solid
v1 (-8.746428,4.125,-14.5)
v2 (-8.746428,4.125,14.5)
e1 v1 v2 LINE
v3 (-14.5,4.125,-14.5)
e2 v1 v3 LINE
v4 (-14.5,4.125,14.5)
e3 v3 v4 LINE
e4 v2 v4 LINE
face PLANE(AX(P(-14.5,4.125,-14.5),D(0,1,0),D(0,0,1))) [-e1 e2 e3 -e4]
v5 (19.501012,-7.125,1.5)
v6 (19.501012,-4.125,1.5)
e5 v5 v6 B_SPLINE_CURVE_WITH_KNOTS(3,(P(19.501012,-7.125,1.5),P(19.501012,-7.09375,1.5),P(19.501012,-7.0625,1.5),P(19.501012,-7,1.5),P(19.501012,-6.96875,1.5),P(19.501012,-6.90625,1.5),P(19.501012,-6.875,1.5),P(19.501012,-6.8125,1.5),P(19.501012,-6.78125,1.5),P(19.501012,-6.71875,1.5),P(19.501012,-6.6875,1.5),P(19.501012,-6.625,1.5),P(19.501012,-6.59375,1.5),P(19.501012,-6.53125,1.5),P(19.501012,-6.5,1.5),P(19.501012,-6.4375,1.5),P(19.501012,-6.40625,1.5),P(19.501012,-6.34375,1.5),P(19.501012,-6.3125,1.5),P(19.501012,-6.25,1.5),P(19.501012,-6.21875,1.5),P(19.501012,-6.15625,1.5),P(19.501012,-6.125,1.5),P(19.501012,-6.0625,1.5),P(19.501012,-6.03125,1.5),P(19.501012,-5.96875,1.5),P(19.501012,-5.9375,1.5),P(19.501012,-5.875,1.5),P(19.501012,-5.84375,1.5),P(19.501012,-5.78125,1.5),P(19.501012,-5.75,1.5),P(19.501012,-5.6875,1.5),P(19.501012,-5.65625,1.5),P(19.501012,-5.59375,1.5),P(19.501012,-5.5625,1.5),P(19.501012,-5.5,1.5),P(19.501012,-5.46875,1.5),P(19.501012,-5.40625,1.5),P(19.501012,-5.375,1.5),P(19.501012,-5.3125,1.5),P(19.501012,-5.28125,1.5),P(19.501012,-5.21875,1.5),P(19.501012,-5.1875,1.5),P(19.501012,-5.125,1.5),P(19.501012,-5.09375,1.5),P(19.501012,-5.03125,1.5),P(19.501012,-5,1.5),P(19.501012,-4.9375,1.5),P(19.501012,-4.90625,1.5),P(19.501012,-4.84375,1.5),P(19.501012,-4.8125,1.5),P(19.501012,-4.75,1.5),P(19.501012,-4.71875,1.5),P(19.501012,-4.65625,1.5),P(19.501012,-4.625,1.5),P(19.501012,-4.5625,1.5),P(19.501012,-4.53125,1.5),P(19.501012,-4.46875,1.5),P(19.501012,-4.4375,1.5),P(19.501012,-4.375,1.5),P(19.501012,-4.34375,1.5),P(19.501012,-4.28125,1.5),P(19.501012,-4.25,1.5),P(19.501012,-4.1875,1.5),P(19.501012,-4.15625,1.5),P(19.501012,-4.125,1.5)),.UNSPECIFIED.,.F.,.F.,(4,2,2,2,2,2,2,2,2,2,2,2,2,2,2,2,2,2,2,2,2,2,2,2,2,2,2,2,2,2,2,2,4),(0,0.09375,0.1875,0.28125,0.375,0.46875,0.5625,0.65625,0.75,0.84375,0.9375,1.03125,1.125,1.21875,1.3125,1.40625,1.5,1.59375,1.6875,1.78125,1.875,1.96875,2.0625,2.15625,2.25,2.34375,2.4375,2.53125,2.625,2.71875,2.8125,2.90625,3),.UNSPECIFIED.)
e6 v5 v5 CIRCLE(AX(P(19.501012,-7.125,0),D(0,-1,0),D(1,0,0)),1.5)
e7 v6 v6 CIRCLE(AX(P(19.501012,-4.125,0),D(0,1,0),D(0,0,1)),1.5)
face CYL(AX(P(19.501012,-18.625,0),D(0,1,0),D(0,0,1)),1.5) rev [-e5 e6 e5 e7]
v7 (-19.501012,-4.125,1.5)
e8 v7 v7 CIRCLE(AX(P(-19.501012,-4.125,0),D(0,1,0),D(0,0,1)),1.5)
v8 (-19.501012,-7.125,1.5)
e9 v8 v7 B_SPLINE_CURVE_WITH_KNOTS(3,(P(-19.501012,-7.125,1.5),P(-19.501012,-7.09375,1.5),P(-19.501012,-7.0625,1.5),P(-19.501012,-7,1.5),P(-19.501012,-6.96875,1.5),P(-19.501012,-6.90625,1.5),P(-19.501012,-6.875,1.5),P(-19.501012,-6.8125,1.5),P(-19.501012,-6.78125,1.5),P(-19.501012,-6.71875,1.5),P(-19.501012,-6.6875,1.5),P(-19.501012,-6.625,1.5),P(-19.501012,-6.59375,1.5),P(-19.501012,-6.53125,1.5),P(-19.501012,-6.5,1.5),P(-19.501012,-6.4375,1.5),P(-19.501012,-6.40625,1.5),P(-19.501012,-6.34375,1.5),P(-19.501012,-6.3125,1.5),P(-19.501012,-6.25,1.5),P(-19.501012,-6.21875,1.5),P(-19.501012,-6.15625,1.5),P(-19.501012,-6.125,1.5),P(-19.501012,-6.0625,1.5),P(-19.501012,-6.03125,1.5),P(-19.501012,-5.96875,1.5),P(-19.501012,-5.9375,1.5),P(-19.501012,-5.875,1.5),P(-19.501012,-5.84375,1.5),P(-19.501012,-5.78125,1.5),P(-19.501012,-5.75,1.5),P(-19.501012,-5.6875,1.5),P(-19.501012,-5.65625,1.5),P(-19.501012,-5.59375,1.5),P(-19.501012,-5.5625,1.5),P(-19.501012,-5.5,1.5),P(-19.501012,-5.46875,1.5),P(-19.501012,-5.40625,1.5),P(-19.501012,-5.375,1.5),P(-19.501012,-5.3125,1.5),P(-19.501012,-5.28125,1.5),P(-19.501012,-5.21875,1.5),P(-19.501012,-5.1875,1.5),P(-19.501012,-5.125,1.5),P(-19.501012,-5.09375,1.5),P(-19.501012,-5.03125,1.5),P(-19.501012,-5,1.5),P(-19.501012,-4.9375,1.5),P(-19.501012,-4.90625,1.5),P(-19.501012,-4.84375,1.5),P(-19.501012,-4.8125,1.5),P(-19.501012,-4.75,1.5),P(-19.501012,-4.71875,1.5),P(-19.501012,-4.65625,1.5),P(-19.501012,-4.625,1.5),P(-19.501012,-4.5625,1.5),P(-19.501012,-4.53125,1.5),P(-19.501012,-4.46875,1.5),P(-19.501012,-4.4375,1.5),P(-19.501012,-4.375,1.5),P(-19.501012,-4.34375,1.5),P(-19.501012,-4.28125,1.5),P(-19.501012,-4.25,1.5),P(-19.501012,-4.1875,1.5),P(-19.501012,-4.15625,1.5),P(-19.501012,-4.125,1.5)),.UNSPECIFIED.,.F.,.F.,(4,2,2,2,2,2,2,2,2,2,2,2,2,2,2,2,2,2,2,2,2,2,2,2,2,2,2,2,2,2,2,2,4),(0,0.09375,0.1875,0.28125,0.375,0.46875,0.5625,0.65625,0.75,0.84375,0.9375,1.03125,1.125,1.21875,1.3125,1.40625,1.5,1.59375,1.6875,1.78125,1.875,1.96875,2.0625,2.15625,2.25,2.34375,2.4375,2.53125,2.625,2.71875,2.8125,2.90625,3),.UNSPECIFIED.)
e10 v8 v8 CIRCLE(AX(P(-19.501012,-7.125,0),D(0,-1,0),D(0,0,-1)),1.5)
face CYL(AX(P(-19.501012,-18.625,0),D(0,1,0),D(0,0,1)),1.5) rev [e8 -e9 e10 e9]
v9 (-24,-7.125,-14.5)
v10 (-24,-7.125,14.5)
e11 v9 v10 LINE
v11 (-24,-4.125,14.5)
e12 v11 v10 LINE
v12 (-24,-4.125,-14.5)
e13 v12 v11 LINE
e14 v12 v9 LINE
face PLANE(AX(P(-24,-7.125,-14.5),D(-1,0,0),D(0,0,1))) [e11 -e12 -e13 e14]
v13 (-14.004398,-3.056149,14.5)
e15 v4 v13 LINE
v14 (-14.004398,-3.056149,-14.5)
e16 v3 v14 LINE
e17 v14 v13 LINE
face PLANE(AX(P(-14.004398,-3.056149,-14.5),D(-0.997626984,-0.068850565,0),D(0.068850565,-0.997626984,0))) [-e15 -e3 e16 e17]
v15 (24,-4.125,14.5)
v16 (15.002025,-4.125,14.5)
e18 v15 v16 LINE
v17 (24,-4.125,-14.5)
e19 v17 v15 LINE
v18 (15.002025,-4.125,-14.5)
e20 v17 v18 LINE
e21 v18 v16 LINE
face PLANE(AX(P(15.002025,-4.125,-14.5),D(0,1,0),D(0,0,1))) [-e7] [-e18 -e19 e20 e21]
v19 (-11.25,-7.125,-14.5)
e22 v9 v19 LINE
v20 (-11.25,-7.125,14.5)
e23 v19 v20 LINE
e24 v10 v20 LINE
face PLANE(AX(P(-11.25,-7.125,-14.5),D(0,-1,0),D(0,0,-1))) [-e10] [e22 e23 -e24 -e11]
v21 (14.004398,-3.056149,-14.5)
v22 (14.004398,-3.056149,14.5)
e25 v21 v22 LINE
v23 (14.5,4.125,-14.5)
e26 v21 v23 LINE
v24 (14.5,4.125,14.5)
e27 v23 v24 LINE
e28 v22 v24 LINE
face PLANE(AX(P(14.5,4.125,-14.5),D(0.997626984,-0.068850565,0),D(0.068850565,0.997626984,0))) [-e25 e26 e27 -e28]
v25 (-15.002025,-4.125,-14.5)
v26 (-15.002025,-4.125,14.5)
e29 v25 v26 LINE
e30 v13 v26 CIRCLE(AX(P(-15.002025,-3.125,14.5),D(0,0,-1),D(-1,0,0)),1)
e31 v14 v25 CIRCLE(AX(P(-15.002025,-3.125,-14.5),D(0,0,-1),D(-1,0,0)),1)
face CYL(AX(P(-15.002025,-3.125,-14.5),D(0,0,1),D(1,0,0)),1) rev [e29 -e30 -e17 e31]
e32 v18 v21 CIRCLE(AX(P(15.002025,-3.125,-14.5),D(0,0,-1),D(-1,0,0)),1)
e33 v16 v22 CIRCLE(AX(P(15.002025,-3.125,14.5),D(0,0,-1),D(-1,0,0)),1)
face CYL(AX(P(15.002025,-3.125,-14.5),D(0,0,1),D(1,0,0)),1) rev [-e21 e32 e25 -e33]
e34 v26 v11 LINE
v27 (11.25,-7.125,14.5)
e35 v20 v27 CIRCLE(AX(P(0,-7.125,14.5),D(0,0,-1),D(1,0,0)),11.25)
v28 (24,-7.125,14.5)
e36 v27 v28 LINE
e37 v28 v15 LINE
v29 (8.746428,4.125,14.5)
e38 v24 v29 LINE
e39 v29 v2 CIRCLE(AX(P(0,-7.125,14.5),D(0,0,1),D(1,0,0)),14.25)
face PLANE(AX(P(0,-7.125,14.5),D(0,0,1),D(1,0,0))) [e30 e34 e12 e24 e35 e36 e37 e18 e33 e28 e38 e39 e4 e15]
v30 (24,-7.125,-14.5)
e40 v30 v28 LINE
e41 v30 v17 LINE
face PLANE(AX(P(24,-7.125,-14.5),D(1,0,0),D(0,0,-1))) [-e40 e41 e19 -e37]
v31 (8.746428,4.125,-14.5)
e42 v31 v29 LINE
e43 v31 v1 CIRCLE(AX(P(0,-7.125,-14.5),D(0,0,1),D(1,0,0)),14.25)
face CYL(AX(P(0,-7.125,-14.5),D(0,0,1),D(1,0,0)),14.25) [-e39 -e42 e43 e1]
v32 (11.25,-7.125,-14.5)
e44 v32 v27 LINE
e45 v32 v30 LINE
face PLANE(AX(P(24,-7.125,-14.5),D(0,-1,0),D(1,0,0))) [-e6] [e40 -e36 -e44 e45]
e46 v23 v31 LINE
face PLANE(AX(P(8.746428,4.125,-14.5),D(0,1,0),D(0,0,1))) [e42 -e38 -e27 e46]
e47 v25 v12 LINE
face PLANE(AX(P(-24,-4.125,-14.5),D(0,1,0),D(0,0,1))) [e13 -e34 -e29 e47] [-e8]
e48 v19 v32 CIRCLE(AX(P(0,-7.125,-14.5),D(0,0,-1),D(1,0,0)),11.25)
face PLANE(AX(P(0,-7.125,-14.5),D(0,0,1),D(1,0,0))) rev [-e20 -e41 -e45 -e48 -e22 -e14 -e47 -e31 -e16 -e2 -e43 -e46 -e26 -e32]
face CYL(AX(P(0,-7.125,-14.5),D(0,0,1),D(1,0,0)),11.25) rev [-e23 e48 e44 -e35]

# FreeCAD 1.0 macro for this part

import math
import FreeCAD as App
import Part
import Sketcher

doc = App.newDocument("Part")
body = doc.addObject("PartDesign::Body", "Body")

sketch1 = doc.addObject("Sketcher::SketchObject", "Sketch")
body.addObject(sketch1)
sketch1.AttachmentSupport = (doc.XY_Plane, [""])
sketch1.MapMode = "FlatFace"
sketch1.addGeometry([
    Part.LineSegment(App.Vector(-24, -7.1, 0), App.Vector(-11.2, -7.1, 0)),
    Part.ArcOfCircle(Part.Circle(App.Vector(0, -7.1, 0), App.Vector(0, 0, 1), 11.2), math.radians(0), math.radians(180)),
    Part.LineSegment(App.Vector(11.2, -7.1, 0), App.Vector(24, -7.1, 0)),
    Part.LineSegment(App.Vector(24, -7.1, 0), App.Vector(24, -4.1, 0)),
    Part.LineSegment(App.Vector(24, -4.1, 0), App.Vector(15, -4.1, 0)),
    Part.ArcOfCircle(Part.Circle(App.Vector(15, -3.1, 0), App.Vector(0, 0, 1), 1), math.radians(176), math.radians(270)),
    Part.LineSegment(App.Vector(14, -3.1, 0), App.Vector(14.5, 4.1, 0)),
    Part.LineSegment(App.Vector(14.5, 4.1, 0), App.Vector(8.7, 4.1, 0)),
    Part.ArcOfCircle(Part.Circle(App.Vector(0, -7.1, 0), App.Vector(0, 0, 1), 14.2), math.radians(52), math.radians(128)),
    Part.LineSegment(App.Vector(-8.7, 4.1, 0), App.Vector(-14.5, 4.1, 0)),
    Part.LineSegment(App.Vector(-14.5, 4.1, 0), App.Vector(-14, -3.1, 0)),
    Part.ArcOfCircle(Part.Circle(App.Vector(-15, -3.1, 0), App.Vector(0, 0, 1), 1), math.radians(-90), math.radians(4)),
    Part.LineSegment(App.Vector(-15, -4.1, 0), App.Vector(-24, -4.1, 0)),
    Part.LineSegment(App.Vector(-24, -4.1, 0), App.Vector(-24, -7.1, 0)),
], False)
sketch1.addConstraint([
    Sketcher.Constraint("Coincident", 0, 2, 1, 2),
    Sketcher.Constraint("Coincident", 1, 1, 2, 1),
    Sketcher.Constraint("Coincident", 2, 2, 3, 1),
    Sketcher.Constraint("Coincident", 3, 2, 4, 1),
    Sketcher.Constraint("Tangent", 4, 2, 5, 2),
    Sketcher.Constraint("Tangent", 5, 1, 6, 1),
    Sketcher.Constraint("Coincident", 6, 2, 7, 1),
    Sketcher.Constraint("Coincident", 7, 2, 8, 1),
    Sketcher.Constraint("Coincident", 8, 2, 9, 1),
    Sketcher.Constraint("Coincident", 9, 2, 10, 1),
    Sketcher.Constraint("Tangent", 10, 2, 11, 2),
    Sketcher.Constraint("Tangent", 11, 1, 12, 1),
    Sketcher.Constraint("Coincident", 12, 2, 13, 1),
    Sketcher.Constraint("Coincident", 13, 2, 0, 1),
    Sketcher.Constraint("Horizontal", 0),
    Sketcher.Constraint("Horizontal", 2),
    Sketcher.Constraint("Vertical", 3),
    Sketcher.Constraint("Horizontal", 4),
    Sketcher.Constraint("Horizontal", 7),
    Sketcher.Constraint("Horizontal", 9),
    Sketcher.Constraint("Horizontal", 12),
    Sketcher.Constraint("Vertical", 13),
    Sketcher.Constraint("Coincident", 8, 3, 1, 3),
    Sketcher.Constraint("Equal", 5, 11),
    Sketcher.Constraint("Symmetric", 5, 3, 11, 3, -2),
    Sketcher.Constraint("Symmetric", 0, 2, 1, 1, -2),
    Sketcher.Constraint("Symmetric", 6, 2, 9, 2, -2),
    Sketcher.Constraint("Horizontal", 8, 3, 0, 2),
    Sketcher.Constraint("Equal", 0, 2),
    Sketcher.Constraint("Radius", 5, 1.0),
    Sketcher.Constraint("DistanceY", 3, 1, 3, 2, 3.0),
    Sketcher.Constraint("Radius", 1, 11.25),
    Sketcher.Constraint("Radius", 8, 14.25),
    Sketcher.Constraint("DistanceX", -1, 1, 2, 2, 24.0),
    Sketcher.Constraint("DistanceX", -1, 1, 6, 2, 14.5),
    Sketcher.Constraint("DistanceY", 5, 3, 6, 2, 7.25),
    Sketcher.Constraint("DistanceY", 1, 3, -1, 1, 7.125),
    Sketcher.Constraint("Distance", 6, 7.198231),
])
pad1 = doc.addObject("PartDesign::Pad", "Pad")
body.addObject(pad1)
pad1.Profile = sketch1
pad1.Type = "TwoLengths"
pad1.Length = 14.5
pad1.Length2 = 14.5

sketch2 = doc.addObject("Sketcher::SketchObject", "Sketch001")
body.addObject(sketch2)
sketch2.AttachmentSupport = (doc.XZ_Plane, [""])
sketch2.MapMode = "FlatFace"
sketch2.AttachmentOffset = App.Placement(App.Vector(0, 0, 4.125), App.Rotation())
sketch2.addGeometry([
    Part.Circle(App.Vector(-19.5, 0, 0), App.Vector(0, 0, 1), 1.5),
    Part.Circle(App.Vector(19.5, 0, 0), App.Vector(0, 0, 1), 1.5),
], False)
sketch2.addConstraint([
    Sketcher.Constraint("Equal", 0, 1),
    Sketcher.Constraint("Symmetric", 0, 3, 1, 3, -1, 1),
    Sketcher.Constraint("PointOnObject", 0, 3, -1),
    Sketcher.Constraint("Diameter", 0, 3.0),
    Sketcher.Constraint("DistanceX", 0, 3, -1, 1, 19.501012),
])
pocket1 = doc.addObject("PartDesign::Pocket", "Pocket")
body.addObject(pocket1)
pocket1.Profile = sketch2
pocket1.Length = 14.5
pocket1.Reversed = True

doc.recompute()
